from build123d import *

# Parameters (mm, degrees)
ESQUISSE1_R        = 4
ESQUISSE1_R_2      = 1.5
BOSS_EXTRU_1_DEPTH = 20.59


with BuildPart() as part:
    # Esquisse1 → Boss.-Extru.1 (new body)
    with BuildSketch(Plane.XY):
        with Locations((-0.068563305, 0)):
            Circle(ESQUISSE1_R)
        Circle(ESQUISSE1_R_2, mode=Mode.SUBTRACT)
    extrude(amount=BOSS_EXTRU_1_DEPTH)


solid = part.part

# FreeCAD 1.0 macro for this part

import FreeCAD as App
import Part
import Sketcher
from FreeCAD import Vector
Q = App.Units.Quantity

doc = App.newDocument("Part")
body = doc.addObject("PartDesign::Body", "Body")

sketch1 = doc.addObject("Sketcher::SketchObject", "Sketch")
body.addObject(sketch1)
sketch1.AttachmentSupport = (doc.XY_Plane, [""])
sketch1.MapMode = "FlatFace"
sketch1.addGeometry(Part.Circle(Vector(-0.1, 0, 0), Vector(0, 0, 1), 4), False)
sketch1.addGeometry(Part.Circle(Vector(0, 0, 0), Vector(0, 0, 1), 1.5), False)
sketch1.addConstraint(Sketcher.Constraint("Coincident", 1, 3, -1, 1))
sketch1.addConstraint(Sketcher.Constraint("PointOnObject", 0, 3, -1))
sketch1.addConstraint(Sketcher.Constraint("Diameter", 0, Q("8 mm")))
sketch1.addConstraint(Sketcher.Constraint("Diameter", 1, Q("3 mm")))
sketch1.addConstraint(Sketcher.Constraint("DistanceX", 0, 3, -1, 1, Q("0.068563 mm")))
pad1 = doc.addObject("PartDesign::Pad", "Pad")
body.addObject(pad1)
pad1.Profile = sketch1
pad1.Length = 20.59

doc.recompute()
